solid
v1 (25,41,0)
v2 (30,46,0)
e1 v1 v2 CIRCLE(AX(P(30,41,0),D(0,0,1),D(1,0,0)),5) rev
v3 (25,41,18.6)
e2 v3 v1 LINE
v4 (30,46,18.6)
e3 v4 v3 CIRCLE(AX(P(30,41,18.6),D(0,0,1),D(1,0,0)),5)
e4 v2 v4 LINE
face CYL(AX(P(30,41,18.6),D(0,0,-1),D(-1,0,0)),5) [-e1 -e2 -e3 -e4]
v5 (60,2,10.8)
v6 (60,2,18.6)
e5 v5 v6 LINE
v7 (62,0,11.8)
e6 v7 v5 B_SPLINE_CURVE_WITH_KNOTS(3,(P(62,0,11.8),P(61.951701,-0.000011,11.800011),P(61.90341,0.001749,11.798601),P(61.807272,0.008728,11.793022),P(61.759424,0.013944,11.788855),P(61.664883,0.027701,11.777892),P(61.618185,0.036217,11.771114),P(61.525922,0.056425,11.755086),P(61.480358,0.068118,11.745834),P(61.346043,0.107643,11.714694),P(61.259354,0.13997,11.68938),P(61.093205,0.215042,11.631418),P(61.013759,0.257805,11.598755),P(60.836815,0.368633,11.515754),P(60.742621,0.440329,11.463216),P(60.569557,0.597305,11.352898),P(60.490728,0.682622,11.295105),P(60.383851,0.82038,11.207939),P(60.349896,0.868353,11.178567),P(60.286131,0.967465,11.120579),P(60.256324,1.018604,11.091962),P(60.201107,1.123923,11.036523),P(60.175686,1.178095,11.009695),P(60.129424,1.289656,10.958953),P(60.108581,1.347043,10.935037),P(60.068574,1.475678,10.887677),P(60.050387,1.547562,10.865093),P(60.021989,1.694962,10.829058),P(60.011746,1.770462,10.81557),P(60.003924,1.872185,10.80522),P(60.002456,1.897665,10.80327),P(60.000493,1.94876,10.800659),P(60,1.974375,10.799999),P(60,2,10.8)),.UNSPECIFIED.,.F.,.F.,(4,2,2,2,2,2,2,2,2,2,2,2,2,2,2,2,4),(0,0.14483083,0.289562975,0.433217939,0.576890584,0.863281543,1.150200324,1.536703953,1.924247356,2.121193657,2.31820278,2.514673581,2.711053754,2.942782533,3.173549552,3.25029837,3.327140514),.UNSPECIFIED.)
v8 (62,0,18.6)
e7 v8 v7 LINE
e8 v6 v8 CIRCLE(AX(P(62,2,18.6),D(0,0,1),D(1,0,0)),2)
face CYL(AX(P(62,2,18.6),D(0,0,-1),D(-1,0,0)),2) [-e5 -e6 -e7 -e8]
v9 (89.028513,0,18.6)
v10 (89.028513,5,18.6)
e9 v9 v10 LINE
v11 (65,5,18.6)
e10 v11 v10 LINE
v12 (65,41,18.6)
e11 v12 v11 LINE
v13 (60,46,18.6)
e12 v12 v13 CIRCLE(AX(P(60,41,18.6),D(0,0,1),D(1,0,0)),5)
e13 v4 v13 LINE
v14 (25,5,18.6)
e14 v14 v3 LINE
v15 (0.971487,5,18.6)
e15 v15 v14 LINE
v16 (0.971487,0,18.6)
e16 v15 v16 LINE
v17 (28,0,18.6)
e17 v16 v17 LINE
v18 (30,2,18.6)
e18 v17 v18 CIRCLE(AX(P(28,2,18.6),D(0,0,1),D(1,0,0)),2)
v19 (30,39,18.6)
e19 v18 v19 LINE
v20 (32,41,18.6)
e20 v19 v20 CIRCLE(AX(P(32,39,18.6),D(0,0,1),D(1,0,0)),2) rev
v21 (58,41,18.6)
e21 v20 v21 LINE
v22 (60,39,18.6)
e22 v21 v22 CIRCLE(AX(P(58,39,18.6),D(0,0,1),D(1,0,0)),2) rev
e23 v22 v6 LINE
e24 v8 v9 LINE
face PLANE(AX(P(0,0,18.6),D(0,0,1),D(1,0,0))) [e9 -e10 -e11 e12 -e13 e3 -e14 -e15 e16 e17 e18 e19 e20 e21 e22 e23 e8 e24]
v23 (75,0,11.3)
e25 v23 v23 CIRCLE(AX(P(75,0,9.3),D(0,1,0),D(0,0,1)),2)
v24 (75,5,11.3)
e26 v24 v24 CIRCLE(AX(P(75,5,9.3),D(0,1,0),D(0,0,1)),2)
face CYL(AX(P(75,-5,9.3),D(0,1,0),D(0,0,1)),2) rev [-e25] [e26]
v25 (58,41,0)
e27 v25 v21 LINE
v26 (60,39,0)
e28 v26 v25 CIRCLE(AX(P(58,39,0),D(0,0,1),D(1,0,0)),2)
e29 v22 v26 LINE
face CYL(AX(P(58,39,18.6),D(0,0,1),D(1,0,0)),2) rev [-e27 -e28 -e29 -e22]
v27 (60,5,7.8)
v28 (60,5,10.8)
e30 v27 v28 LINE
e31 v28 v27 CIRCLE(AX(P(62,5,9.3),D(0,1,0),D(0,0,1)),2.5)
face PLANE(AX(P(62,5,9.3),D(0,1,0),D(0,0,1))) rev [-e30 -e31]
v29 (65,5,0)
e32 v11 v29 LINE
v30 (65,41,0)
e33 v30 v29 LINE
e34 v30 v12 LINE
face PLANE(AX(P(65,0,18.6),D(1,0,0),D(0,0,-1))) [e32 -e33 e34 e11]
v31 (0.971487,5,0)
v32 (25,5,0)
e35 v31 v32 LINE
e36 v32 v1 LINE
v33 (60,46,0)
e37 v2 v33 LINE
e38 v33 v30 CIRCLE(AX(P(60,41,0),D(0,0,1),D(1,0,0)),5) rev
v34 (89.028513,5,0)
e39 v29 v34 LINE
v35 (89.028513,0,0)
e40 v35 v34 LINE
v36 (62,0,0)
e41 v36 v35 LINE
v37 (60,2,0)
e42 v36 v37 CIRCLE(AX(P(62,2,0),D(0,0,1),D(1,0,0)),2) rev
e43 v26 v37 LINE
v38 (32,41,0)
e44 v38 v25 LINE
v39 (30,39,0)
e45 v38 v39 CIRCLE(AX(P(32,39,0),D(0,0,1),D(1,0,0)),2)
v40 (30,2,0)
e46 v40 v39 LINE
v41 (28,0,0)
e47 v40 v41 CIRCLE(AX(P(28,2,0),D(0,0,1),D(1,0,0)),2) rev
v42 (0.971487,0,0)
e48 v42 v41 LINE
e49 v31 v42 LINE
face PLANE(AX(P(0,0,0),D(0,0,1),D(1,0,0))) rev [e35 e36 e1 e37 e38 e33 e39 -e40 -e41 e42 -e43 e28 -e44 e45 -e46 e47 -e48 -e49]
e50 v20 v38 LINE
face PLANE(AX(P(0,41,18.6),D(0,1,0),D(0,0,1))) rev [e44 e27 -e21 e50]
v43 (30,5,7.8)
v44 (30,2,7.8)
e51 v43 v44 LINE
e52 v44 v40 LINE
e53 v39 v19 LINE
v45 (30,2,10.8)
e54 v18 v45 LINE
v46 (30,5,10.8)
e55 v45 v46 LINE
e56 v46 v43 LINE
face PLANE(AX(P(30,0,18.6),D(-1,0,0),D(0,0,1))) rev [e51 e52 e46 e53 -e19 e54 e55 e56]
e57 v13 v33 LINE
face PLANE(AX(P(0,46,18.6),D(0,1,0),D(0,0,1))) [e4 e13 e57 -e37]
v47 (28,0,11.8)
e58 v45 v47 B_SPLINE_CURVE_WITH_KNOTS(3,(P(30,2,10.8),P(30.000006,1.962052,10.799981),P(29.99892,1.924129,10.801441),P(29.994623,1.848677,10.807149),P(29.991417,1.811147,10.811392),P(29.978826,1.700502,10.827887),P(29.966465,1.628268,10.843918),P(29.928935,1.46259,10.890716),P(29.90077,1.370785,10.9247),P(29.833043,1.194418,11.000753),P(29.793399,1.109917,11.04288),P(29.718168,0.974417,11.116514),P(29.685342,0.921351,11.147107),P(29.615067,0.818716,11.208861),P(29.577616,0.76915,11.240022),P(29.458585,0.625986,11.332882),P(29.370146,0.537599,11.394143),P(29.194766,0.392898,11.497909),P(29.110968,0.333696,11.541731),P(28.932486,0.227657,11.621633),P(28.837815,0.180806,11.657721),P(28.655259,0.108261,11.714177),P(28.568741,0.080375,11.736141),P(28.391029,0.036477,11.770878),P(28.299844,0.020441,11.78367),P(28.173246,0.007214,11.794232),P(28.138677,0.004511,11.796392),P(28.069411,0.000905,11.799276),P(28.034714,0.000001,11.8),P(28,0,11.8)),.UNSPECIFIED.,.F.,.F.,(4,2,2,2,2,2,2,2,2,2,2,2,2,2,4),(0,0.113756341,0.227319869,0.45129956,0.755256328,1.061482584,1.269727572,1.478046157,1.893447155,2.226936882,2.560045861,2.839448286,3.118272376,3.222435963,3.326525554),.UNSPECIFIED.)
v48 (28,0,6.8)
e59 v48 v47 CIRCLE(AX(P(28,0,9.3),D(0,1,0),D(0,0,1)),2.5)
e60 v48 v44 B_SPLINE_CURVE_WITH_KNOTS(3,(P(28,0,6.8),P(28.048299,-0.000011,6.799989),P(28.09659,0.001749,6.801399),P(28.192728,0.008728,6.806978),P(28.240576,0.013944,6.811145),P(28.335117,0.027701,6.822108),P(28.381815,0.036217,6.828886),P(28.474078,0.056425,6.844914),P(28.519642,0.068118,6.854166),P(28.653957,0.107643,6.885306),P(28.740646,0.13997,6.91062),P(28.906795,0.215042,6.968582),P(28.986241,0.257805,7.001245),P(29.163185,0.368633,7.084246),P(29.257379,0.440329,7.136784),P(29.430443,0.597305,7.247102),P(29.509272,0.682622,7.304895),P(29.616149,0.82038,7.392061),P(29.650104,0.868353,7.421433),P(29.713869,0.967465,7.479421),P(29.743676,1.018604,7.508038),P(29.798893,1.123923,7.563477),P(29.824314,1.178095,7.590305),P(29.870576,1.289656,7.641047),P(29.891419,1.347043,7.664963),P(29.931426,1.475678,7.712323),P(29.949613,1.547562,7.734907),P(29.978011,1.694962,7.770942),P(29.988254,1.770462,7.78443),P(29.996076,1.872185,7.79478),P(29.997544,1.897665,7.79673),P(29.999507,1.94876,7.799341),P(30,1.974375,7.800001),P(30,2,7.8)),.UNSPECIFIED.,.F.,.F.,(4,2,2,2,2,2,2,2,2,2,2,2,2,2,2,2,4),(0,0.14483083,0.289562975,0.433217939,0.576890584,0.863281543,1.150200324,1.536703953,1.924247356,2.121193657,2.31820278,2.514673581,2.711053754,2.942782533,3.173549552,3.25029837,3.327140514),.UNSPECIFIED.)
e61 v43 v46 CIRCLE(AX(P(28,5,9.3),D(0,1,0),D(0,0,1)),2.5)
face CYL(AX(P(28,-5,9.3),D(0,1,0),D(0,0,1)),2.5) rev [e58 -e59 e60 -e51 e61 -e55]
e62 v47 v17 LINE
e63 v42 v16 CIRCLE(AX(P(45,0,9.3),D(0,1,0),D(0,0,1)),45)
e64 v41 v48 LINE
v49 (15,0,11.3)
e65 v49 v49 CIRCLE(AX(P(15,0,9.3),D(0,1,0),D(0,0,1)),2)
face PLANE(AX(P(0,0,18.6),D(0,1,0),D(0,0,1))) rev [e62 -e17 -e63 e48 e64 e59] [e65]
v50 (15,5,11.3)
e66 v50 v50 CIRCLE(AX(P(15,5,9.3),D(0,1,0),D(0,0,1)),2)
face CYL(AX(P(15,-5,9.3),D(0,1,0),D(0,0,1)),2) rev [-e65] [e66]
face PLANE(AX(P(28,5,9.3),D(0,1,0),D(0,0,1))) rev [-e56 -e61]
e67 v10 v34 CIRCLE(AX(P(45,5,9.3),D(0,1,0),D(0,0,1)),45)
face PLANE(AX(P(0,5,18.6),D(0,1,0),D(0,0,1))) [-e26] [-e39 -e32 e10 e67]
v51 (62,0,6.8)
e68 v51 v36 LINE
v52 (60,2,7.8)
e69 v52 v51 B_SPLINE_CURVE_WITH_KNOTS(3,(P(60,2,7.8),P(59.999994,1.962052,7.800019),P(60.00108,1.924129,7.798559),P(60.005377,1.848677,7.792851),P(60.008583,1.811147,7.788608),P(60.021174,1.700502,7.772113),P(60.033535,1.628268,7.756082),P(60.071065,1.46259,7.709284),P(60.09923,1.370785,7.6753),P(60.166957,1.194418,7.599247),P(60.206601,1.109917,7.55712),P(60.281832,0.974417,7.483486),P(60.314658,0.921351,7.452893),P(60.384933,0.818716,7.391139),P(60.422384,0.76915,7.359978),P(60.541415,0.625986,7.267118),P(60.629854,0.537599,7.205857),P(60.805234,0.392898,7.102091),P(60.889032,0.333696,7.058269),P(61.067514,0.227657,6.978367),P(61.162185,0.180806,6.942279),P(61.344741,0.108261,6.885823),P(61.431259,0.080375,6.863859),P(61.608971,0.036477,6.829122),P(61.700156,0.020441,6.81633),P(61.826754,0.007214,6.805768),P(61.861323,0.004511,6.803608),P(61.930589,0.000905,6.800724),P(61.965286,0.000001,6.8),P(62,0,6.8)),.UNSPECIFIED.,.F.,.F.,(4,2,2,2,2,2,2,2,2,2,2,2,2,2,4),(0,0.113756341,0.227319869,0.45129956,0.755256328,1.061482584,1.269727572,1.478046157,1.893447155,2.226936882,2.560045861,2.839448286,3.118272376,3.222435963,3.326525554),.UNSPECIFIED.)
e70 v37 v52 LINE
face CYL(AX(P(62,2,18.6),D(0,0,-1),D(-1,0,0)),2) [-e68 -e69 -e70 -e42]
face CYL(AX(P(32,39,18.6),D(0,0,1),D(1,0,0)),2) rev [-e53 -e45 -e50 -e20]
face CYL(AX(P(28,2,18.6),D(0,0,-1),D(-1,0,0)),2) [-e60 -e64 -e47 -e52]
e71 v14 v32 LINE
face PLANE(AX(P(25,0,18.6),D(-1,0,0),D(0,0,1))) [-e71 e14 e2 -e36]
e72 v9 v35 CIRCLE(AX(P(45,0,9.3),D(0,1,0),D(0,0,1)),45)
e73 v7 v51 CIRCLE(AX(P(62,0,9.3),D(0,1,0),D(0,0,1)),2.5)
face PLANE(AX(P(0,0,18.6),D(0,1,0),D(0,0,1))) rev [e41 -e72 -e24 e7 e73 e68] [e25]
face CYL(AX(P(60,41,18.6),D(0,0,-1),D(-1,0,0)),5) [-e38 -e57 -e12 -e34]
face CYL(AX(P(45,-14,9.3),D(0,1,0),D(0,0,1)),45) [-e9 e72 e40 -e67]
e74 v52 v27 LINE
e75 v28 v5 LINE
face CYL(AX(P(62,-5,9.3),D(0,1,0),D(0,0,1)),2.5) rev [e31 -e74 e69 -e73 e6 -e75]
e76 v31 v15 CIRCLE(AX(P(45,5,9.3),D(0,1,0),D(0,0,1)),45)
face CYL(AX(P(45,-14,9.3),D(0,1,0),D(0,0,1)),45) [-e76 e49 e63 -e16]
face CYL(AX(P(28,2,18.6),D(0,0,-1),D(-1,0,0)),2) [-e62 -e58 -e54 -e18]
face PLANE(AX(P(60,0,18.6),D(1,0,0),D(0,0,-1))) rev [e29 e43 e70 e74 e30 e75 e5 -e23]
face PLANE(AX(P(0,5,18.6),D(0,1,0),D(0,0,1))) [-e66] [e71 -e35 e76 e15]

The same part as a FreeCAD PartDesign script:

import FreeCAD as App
import Part
import Sketcher
Q = App.Units.Quantity


def edges_at(feature, points):
    """Names of the edges that pass closest to the given points."""
    edges = feature.Shape.Edges
    near = lambda p: min(range(len(edges)), key=lambda i: edges[i].distToShape(Part.Vertex(*p))[0])
    return sorted({f"Edge{near(p) + 1}" for p in points})

doc = App.newDocument("Part")
params = doc.addObject("Spreadsheet::Sheet", "Params")
for row, (alias, value) in enumerate([
    ("sketch1_width", "25 mm"),
    ("sketch1_width2", "40 mm"),
    ("sketch1_height", "5 mm"),
    ("sketch1_height2", "41 mm"),
    ("pad1_length", "18.6 mm"),
    ("sketch2_diameter", "4 mm"),
    ("sketch2_diameter2", "5 mm"),
    ("pocket1_length", "10 mm"),
    ("sketch3_diameter", "100 mm"),
    ("sketch3_diameter2", "90 mm"),
    ("pocket2_length", "60 mm"),
    ("fillet_radius", "5 mm"),
    ("fillet2_radius", "5 mm"),
    ("fillet3_radius", "2 mm"),
    ("fillet4_radius", "2 mm"),
], start=1):
    params.set(f"A{row}", alias)
    params.set(f"B{row}", "=" + value)
    params.setAlias(f"B{row}", alias)

body = doc.addObject("PartDesign::Body", "Body")

sketch1 = body.newObject("Sketcher::SketchObject", "Sketch")
sketch1.AttachmentSupport = (doc.getObject("XY_Plane"), [""])
sketch1.MapMode = "FlatFace"
sketch1.addGeometry(Part.LineSegment(App.Vector(90, 0, 0), App.Vector(90, 5, 0)), False)
sketch1.addGeometry(Part.LineSegment(App.Vector(90, 5, 0), App.Vector(65, 5, 0)), False)
sketch1.addGeometry(Part.LineSegment(App.Vector(65, 5, 0), App.Vector(65, 46, 0)), False)
sketch1.addGeometry(Part.LineSegment(App.Vector(65, 46, 0), App.Vector(25, 46, 0)), False)
sketch1.addGeometry(Part.LineSegment(App.Vector(25, 46, 0), App.Vector(25, 5, 0)), False)
sketch1.addGeometry(Part.LineSegment(App.Vector(25, 5, 0), App.Vector(0, 5, 0)), False)
sketch1.addGeometry(Part.LineSegment(App.Vector(0, 5, 0), App.Vector(0, 0, 0)), False)
sketch1.addGeometry(Part.LineSegment(App.Vector(0, 0, 0), App.Vector(30, 0, 0)), False)
sketch1.addGeometry(Part.LineSegment(App.Vector(30, 0, 0), App.Vector(30, 41, 0)), False)
sketch1.addGeometry(Part.LineSegment(App.Vector(30, 41, 0), App.Vector(60, 41, 0)), False)
sketch1.addGeometry(Part.LineSegment(App.Vector(60, 41, 0), App.Vector(60, 0, 0)), False)
sketch1.addGeometry(Part.LineSegment(App.Vector(60, 0, 0), App.Vector(90, 0, 0)), False)
sketch1.addConstraint(Sketcher.Constraint("Coincident", 0, 2, 1, 1))
sketch1.addConstraint(Sketcher.Constraint("Coincident", 1, 2, 2, 1))
sketch1.addConstraint(Sketcher.Constraint("Coincident", 2, 2, 3, 1))
sketch1.addConstraint(Sketcher.Constraint("Coincident", 3, 2, 4, 1))
sketch1.addConstraint(Sketcher.Constraint("Coincident", 4, 2, 5, 1))
sketch1.addConstraint(Sketcher.Constraint("Coincident", 5, 2, 6, 1))
sketch1.addConstraint(Sketcher.Constraint("Coincident", 6, 2, 7, 1))
sketch1.addConstraint(Sketcher.Constraint("Coincident", 7, 2, 8, 1))
sketch1.addConstraint(Sketcher.Constraint("Coincident", 8, 2, 9, 1))
sketch1.addConstraint(Sketcher.Constraint("Coincident", 9, 2, 10, 1))
sketch1.addConstraint(Sketcher.Constraint("Coincident", 10, 2, 11, 1))
sketch1.addConstraint(Sketcher.Constraint("Coincident", 11, 2, 0, 1))
sketch1.addConstraint(Sketcher.Constraint("Vertical", 0))
sketch1.addConstraint(Sketcher.Constraint("Horizontal", 1))
sketch1.addConstraint(Sketcher.Constraint("Vertical", 2))
sketch1.addConstraint(Sketcher.Constraint("Horizontal", 3))
sketch1.addConstraint(Sketcher.Constraint("Vertical", 4))
sketch1.addConstraint(Sketcher.Constraint("Horizontal", 5))
sketch1.addConstraint(Sketcher.Constraint("Vertical", 6))
sketch1.addConstraint(Sketcher.Constraint("Horizontal", 7))
sketch1.addConstraint(Sketcher.Constraint("Vertical", 8))
sketch1.addConstraint(Sketcher.Constraint("Horizontal", 9))
sketch1.addConstraint(Sketcher.Constraint("Vertical", 10))
sketch1.addConstraint(Sketcher.Constraint("Horizontal", 11))
sketch1.addConstraint(Sketcher.Constraint("Coincident", 6, 2, -1, 1))
sketch1.addConstraint(Sketcher.Constraint("PointOnObject", 10, 2, -1))
sketch1.addConstraint(Sketcher.Constraint("Horizontal", 1, 2, 4, 2))
sketch1.addConstraint(Sketcher.Constraint("Equal", 1, 5))
sketch1.addConstraint(Sketcher.Constraint("Equal", 7, 9))
sketch1.addConstraint(Sketcher.Constraint("Equal", 9, 11))
sketch1.addConstraint(Sketcher.Constraint("Equal", 4, 8))
sketch1.addConstraint(Sketcher.Constraint("DistanceX", 1, 2, 1, 1, Q("25 mm")))
sketch1.addConstraint(Sketcher.Constraint("DistanceX", 3, 2, 3, 1, Q("40 mm")))
sketch1.addConstraint(Sketcher.Constraint("DistanceY", 0, 1, 0, 2, Q("5 mm")))
sketch1.addConstraint(Sketcher.Constraint("DistanceY", 2, 1, 2, 2, Q("41 mm")))
sketch1.setExpression("Constraints[31]", "Params.sketch1_width")
sketch1.setExpression("Constraints[32]", "Params.sketch1_width2")
sketch1.setExpression("Constraints[33]", "Params.sketch1_height")
sketch1.setExpression("Constraints[34]", "Params.sketch1_height2")
pad1 = body.newObject("PartDesign::Pad", "Pad")
pad1.Profile = sketch1
pad1.setExpression("Length", "Params.pad1_length")

sketch2 = body.newObject("Sketcher::SketchObject", "Sketch001")
sketch2.AttachmentSupport = (doc.getObject("XZ_Plane"), [""])
sketch2.MapMode = "FlatFace"
sketch2.AttachmentOffset = App.Placement(App.Vector(0, 0, -5), App.Rotation())
sketch2.addGeometry(Part.Circle(App.Vector(75, 9.3, 0), App.Vector(0, 0, 1), 2), False)
sketch2.addGeometry(Part.Circle(App.Vector(15, 9.3, 0), App.Vector(0, 0, 1), 2), False)
sketch2.addGeometry(Part.Circle(App.Vector(28, 9.3, 0), App.Vector(0, 0, 1), 2.5), False)
sketch2.addGeometry(Part.Circle(App.Vector(62, 9.3, 0), App.Vector(0, 0, 1), 2.5), False)
sketch2.addConstraint(Sketcher.Constraint("Equal", 0, 1))
sketch2.addConstraint(Sketcher.Constraint("Equal", 2, 3))
sketch2.addConstraint(Sketcher.Constraint("Horizontal", 0, 3, 1, 3))
sketch2.addConstraint(Sketcher.Constraint("Horizontal", 1, 3, 2, 3))
sketch2.addConstraint(Sketcher.Constraint("Horizontal", 2, 3, 3, 3))
sketch2.addConstraint(Sketcher.Constraint("Diameter", 0, Q("4 mm")))
sketch2.addConstraint(Sketcher.Constraint("Diameter", 2, Q("5 mm")))
sketch2.addConstraint(Sketcher.Constraint("DistanceX", -1, 1, 0, 3, Q("75 mm")))
sketch2.addConstraint(Sketcher.Constraint("DistanceX", -1, 1, 1, 3, Q("15 mm")))
sketch2.addConstraint(Sketcher.Constraint("DistanceX", -1, 1, 2, 3, Q("28 mm")))
sketch2.addConstraint(Sketcher.Constraint("DistanceX", -1, 1, 3, 3, Q("62 mm")))
sketch2.addConstraint(Sketcher.Constraint("DistanceY", -1, 1, 0, 3, Q("9.3 mm")))
sketch2.setExpression("Constraints[5]", "Params.sketch2_diameter")
sketch2.setExpression("Constraints[6]", "Params.sketch2_diameter2")
pocket1 = body.newObject("PartDesign::Pocket", "Pocket")
pocket1.Profile = sketch2
pocket1.setExpression("Length", "Params.pocket1_length")
pocket1.Reversed = True

sketch3 = body.newObject("Sketcher::SketchObject", "Sketch002")
sketch3.AttachmentSupport = (doc.getObject("XZ_Plane"), [""])
sketch3.MapMode = "FlatFace"
sketch3.AttachmentOffset = App.Placement(App.Vector(0, 0, -46), App.Rotation())
sketch3.addGeometry(Part.Circle(App.Vector(45, 9.3, 0), App.Vector(0, 0, 1), 50), False)
sketch3.addGeometry(Part.Circle(App.Vector(45, 9.3, 0), App.Vector(0, 0, 1), 45), False)
sketch3.addConstraint(Sketcher.Constraint("Coincident", 1, 3, 0, 3))
sketch3.addConstraint(Sketcher.Constraint("Diameter", 0, Q("100 mm")))
sketch3.addConstraint(Sketcher.Constraint("Diameter", 1, Q("90 mm")))
sketch3.addConstraint(Sketcher.Constraint("DistanceX", -1, 1, 0, 3, Q("45 mm")))
sketch3.addConstraint(Sketcher.Constraint("DistanceY", -1, 1, 0, 3, Q("9.3 mm")))
sketch3.setExpression("Constraints[1]", "Params.sketch3_diameter")
sketch3.setExpression("Constraints[2]", "Params.sketch3_diameter2")
pocket2 = body.newObject("PartDesign::Pocket", "Pocket001")
pocket2.Profile = sketch3
pocket2.setExpression("Length", "Params.pocket2_length")
pocket2.Reversed = True
doc.recompute()

fillet = body.newObject("PartDesign::Fillet", "Fillet")
fillet.Base = (pocket2, edges_at(pocket2, [(25, 46, 9.3)]))
fillet.setExpression("Radius", "Params.fillet_radius")
doc.recompute()

fillet2 = body.newObject("PartDesign::Fillet", "Fillet001")
fillet2.Base = (fillet, edges_at(fillet, [(65, 46, 9.3)]))
fillet2.setExpression("Radius", "Params.fillet2_radius")
doc.recompute()

fillet3 = body.newObject("PartDesign::Fillet", "Fillet002")
fillet3.Base = (fillet2, edges_at(fillet2, [
    (60, 0, 14.7),
    (60, 41, 9.3),
    (30, 41, 9.3),
    (30, 0, 14.7),
]))
fillet3.setExpression("Radius", "Params.fillet3_radius")
doc.recompute()

fillet4 = body.newObject("PartDesign::Fillet", "Fillet003")
fillet4.Base = (fillet3, edges_at(fillet3, [(60, 0, 3.9), (30, 0, 3.9)]))
fillet4.setExpression("Radius", "Params.fillet4_radius")

doc.recompute()
